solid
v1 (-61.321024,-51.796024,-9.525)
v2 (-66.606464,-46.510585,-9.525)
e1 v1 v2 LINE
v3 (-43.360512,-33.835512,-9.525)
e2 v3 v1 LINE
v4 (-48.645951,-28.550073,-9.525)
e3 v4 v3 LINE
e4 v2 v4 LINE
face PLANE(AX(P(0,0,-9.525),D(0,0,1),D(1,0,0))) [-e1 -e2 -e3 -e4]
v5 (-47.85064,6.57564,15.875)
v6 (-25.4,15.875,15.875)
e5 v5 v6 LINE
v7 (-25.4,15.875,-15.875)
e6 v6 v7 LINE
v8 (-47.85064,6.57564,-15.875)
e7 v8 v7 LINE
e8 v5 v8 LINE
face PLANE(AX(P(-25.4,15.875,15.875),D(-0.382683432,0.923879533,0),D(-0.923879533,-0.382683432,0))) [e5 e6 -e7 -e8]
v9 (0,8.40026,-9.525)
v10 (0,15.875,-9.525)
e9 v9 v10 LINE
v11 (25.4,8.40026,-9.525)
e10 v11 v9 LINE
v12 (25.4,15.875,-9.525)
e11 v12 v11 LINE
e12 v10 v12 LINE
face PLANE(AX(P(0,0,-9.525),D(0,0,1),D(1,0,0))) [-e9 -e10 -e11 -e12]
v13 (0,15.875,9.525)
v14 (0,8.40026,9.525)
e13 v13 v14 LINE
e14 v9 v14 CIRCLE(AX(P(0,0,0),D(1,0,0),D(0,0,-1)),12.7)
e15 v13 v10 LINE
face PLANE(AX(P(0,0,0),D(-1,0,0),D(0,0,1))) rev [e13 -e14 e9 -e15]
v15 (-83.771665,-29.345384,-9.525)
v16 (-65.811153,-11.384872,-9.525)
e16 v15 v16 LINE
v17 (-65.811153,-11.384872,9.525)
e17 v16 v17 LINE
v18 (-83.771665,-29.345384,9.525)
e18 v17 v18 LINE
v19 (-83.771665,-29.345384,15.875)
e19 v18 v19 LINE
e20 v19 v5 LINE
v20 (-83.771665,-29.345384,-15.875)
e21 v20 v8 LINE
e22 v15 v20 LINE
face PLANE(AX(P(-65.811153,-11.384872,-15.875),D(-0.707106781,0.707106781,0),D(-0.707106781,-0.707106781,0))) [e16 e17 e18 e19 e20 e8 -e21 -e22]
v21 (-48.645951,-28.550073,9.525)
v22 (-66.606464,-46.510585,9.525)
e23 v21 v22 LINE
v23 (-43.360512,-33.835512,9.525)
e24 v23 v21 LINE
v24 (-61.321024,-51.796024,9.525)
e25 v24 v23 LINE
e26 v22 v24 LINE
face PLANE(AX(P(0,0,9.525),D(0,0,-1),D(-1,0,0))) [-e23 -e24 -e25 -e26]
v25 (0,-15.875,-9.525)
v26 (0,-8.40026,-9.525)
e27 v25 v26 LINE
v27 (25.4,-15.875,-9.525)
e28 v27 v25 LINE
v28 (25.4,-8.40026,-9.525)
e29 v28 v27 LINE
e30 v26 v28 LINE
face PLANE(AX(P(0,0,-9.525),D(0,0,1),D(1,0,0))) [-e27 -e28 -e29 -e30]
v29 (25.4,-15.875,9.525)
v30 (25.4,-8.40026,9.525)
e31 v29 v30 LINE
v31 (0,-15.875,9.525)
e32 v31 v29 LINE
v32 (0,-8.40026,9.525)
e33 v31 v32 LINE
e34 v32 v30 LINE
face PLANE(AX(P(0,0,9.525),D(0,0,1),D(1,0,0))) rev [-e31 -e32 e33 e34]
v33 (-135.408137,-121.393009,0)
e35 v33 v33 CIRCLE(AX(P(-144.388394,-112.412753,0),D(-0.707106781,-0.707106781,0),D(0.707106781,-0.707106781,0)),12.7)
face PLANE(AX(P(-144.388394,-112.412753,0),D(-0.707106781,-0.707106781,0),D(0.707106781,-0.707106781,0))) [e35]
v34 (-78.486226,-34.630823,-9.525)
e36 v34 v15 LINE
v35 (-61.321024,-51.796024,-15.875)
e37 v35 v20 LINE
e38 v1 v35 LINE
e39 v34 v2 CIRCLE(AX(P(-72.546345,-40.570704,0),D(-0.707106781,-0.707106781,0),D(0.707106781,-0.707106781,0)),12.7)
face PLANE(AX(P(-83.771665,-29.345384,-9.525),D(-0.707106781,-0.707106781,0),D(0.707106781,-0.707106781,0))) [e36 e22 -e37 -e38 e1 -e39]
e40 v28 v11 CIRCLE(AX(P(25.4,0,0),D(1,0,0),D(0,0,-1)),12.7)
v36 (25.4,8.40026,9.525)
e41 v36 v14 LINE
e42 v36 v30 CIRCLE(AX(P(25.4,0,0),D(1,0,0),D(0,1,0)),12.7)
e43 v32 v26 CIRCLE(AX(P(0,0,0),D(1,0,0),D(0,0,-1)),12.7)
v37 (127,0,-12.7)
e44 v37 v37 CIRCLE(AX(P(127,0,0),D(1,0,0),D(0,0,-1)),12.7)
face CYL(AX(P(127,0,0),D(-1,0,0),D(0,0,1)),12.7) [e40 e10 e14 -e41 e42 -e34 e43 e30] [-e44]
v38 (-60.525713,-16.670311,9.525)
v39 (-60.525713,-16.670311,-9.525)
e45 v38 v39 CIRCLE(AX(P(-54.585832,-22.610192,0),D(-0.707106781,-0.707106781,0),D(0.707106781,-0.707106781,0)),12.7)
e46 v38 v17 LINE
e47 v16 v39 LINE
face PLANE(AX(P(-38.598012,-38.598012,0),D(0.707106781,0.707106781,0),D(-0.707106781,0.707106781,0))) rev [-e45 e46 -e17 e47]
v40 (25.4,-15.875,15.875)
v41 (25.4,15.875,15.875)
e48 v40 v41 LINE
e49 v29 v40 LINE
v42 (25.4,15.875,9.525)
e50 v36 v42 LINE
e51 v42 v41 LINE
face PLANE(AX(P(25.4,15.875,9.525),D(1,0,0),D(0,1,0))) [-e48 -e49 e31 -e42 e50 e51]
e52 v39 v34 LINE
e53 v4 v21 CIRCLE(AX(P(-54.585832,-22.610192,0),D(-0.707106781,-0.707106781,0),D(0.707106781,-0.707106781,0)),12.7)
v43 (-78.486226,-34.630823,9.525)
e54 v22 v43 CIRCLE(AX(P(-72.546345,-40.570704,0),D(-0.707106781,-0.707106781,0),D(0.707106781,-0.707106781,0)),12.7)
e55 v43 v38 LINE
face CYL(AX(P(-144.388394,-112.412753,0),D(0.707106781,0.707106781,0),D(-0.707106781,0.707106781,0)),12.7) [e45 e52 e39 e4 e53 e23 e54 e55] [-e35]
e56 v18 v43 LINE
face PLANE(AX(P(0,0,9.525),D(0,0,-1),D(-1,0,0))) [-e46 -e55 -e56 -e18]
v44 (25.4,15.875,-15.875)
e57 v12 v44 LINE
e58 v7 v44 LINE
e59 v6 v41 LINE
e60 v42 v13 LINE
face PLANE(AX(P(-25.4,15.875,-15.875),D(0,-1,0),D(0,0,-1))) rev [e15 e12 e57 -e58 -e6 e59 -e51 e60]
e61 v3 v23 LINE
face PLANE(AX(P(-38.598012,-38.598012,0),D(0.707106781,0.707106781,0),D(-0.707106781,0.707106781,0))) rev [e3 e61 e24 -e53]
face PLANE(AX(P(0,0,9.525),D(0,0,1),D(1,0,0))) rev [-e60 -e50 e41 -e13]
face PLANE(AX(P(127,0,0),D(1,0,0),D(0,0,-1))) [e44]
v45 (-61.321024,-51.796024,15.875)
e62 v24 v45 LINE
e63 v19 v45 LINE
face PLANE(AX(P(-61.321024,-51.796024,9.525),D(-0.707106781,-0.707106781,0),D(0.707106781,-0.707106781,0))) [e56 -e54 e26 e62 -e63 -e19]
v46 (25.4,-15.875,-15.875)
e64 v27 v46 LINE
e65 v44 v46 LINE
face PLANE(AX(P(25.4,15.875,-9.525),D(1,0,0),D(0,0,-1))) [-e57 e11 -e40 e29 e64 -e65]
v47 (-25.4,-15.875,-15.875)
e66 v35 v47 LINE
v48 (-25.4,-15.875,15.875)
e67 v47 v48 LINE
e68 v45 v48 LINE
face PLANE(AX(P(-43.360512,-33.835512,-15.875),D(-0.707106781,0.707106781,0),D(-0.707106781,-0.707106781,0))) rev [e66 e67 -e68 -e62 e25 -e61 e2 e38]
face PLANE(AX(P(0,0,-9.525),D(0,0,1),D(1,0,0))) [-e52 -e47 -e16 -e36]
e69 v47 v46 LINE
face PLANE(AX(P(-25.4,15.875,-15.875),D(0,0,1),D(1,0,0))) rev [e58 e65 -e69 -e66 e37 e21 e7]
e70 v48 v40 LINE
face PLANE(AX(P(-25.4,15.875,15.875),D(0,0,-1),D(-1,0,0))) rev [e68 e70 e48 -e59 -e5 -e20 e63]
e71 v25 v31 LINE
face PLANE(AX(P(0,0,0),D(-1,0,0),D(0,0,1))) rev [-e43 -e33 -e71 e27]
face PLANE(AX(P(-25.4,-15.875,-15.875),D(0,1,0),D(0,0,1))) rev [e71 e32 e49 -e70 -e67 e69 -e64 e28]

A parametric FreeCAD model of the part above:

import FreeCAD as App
import Part
import Sketcher
from FreeCAD import Vector
Q = App.Units.Quantity


def add_polygon(sketch, points):
    """Adds a closed chain of lines whose ends are joined by coincident constraints."""
    first, n = sketch.GeometryCount, len(points)
    for a, b in zip(points, points[1:] + points[:1]):
        sketch.addGeometry(Part.LineSegment(App.Vector(*a, 0), App.Vector(*b, 0)), False)
    for i in range(n):
        sketch.addConstraint(Sketcher.Constraint("Coincident", first + i, 2, first + (i + 1) % n, 1))

doc = App.newDocument("Part")
body = doc.addObject("PartDesign::Body", "Body")

sketch1 = doc.addObject("Sketcher::SketchObject", "Sketch")
body.addObject(sketch1)
sketch1.AttachmentSupport = (doc.YZ_Plane, [""])
sketch1.MapMode = "FlatFace"
sketch1.addGeometry(Part.Circle(Vector(0, 0, 0), Vector(0, 0, 1), 12.7), False)
sketch1.addConstraint(Sketcher.Constraint("Coincident", 0, 3, -1, 1))
sketch1.addConstraint(Sketcher.Constraint("Diameter", 0, Q("1 in")))
pad1 = doc.addObject("PartDesign::Pad", "Pad")
body.addObject(pad1)
pad1.Profile = sketch1
pad1.Length = Q("5 in")

sketch2 = doc.addObject("Sketcher::SketchObject", "Sketch001")
body.addObject(sketch2)
sketch2.AttachmentSupport = (doc.YZ_Plane, [""])
sketch2.MapMode = "FlatFace"
add_polygon(sketch2, [(15.875, -15.875), (-15.875, -15.875), (-15.875, 15.875), (15.875, 15.875)])
sketch2.addConstraint(Sketcher.Constraint("Horizontal", 0))
sketch2.addConstraint(Sketcher.Constraint("Vertical", 1))
sketch2.addConstraint(Sketcher.Constraint("Horizontal", 2))
sketch2.addConstraint(Sketcher.Constraint("Vertical", 3))
sketch2.addConstraint(Sketcher.Constraint("Symmetric", 0, 2, 2, 2, -1, 1))
sketch2.addConstraint(Sketcher.Constraint("Equal", 2, 1))
sketch2.addConstraint(Sketcher.Constraint("DistanceX", 0, 2, 0, 1, Q("1.25 in")))
pad2 = doc.addObject("PartDesign::Pad", "Pad001")
body.addObject(pad2)
pad2.Profile = sketch2
pad2.Length = Q("1 in")
pad2.Reversed = True

sketch3 = doc.addObject("Sketcher::SketchObject", "Sketch002")
body.addObject(sketch3)
sketch3.AttachmentSupport = (doc.XY_Plane, [""])
sketch3.MapMode = "FlatFace"
sketch3.AttachmentOffset = App.Placement(Vector(0, 0, 0.625 * 25.4), App.Rotation())
add_polygon(sketch3, [(0, 15.875), (0, -15.875), (25.4, -15.875), (25.4, 15.875)])
sketch3.addConstraint(Sketcher.Constraint("Vertical", 0))
sketch3.addConstraint(Sketcher.Constraint("Horizontal", 1))
sketch3.addConstraint(Sketcher.Constraint("Vertical", 2))
sketch3.addConstraint(Sketcher.Constraint("Horizontal", 3))
sketch3.addConstraint(Sketcher.Constraint("Symmetric", 0, 2, 3, 2, -1, 1))
sketch3.addConstraint(Sketcher.Constraint("DistanceX", 1, 1, 1, 2, Q("1 in")))
sketch3.addConstraint(Sketcher.Constraint("DistanceY", 0, 2, 0, 1, Q("1.25 in")))
pad3 = doc.addObject("PartDesign::Pad", "Pad002")
body.addObject(pad3)
pad3.Profile = sketch3
pad3.Length = Q("0.25 in")
pad3.Reversed = True

sketch4 = doc.addObject("Sketcher::SketchObject", "Sketch003")
body.addObject(sketch4)
sketch4.AttachmentSupport = (doc.XY_Plane, [""])
sketch4.MapMode = "FlatFace"
sketch4.AttachmentOffset = App.Placement(Vector(0, 0, -0.625 * 25.4), App.Rotation())
add_polygon(sketch4, [(25.4, 15.875), (25.4, -15.875), (0, -15.875), (0, 15.875)])
sketch4.addConstraint(Sketcher.Constraint("Vertical", 0))
sketch4.addConstraint(Sketcher.Constraint("Horizontal", 1))
sketch4.addConstraint(Sketcher.Constraint("Vertical", 2))
sketch4.addConstraint(Sketcher.Constraint("Horizontal", 3))
sketch4.addConstraint(Sketcher.Constraint("Symmetric", 1, 2, 2, 2, -1, 1))
sketch4.addConstraint(Sketcher.Constraint("DistanceX", 1, 2, 1, 1, Q("1 in")))
sketch4.addConstraint(Sketcher.Constraint("DistanceY", 0, 2, 0, 1, Q("1.25 in")))
pad4 = doc.addObject("PartDesign::Pad", "Pad003")
body.addObject(pad4)
pad4.Profile = sketch4
pad4.Length = Q("0.25 in")
body2 = doc.addObject("PartDesign::Body", "Body001")

sketch5 = doc.addObject("Sketcher::SketchObject", "Sketch004")
body2.addObject(sketch5)
sketch5.Placement = App.Placement(Vector(-20.6375, -20.6375, 0), App.Rotation(Vector(0, 0, 1), Vector(-0.707106781, 0.707106781, 0), Vector(-0.707106781, -0.707106781, 0), "ZXY"))
add_polygon(sketch5, [(-15.875, 38.485192), (-15.875, 6.735192), (15.875, 6.735192), (15.875, 38.485192)])
sketch5.addConstraint(Sketcher.Constraint("Vertical", 0))
sketch5.addConstraint(Sketcher.Constraint("Horizontal", 1))
sketch5.addConstraint(Sketcher.Constraint("Vertical", 2))
sketch5.addConstraint(Sketcher.Constraint("Horizontal", 3))
sketch5.addConstraint(Sketcher.Constraint("Equal", 3, 0))
sketch5.addConstraint(Sketcher.Constraint("DistanceX", 1, 1, 1, 2, Q("1.25 in")))
sketch5.addConstraint(Sketcher.Constraint("DistanceX", 0, 2, -1, 1, Q("0.625 in")))
sketch5.addConstraint(Sketcher.Constraint("DistanceY", -1, 1, 0, 2, Q("6.735192 mm")))
pad5 = doc.addObject("PartDesign::Pad", "Pad004")
body2.addObject(pad5)
pad5.Profile = sketch5
pad5.Length = Q("1 in")

sketch6 = doc.addObject("Sketcher::SketchObject", "Sketch005")
body2.addObject(sketch6)
sketch6.Placement = App.Placement(Vector(-38.598012, -38.598012, 0), App.Rotation(Vector(0, 0, 1), Vector(-0.707106781, 0.707106781, 0), Vector(-0.707106781, -0.707106781, 0), "ZXY"))
sketch6.addGeometry(Part.Circle(Vector(0, 22.610192, 0), Vector(0, 0, 1), 12.7), False)
sketch6.addConstraint(Sketcher.Constraint("PointOnObject", 0, 3, -2))
sketch6.addConstraint(Sketcher.Constraint("Diameter", 0, Q("1 in")))
sketch6.addConstraint(Sketcher.Constraint("DistanceY", -1, 1, 0, 3, Q("22.610192 mm")))
pad6 = doc.addObject("PartDesign::Pad", "Pad005")
body2.addObject(pad6)
pad6.Profile = sketch6
pad6.Length = Q("5 in")

sketch7 = doc.addObject("Sketcher::SketchObject", "Sketch006")
body2.addObject(sketch7)
sketch7.AttachmentSupport = (doc.getObject("XY_Plane001"), [""])
sketch7.MapMode = "FlatFace"
sketch7.AttachmentOffset = App.Placement(Vector(0, 0, 0.625 * 25.4), App.Rotation())
add_polygon(sketch7, [(-61.321024, -51.796024), (-43.360512, -33.835512), (-65.811153, -11.384872), (-83.771665, -29.345384)])
sketch7.addConstraint(Sketcher.Constraint("Perpendicular", 0, 1))
sketch7.addConstraint(Sketcher.Constraint("Perpendicular", 1, 2))
sketch7.addConstraint(Sketcher.Constraint("Perpendicular", 2, 3))
sketch7.addConstraint(Sketcher.Constraint("Distance", 0, Q("1 in")))
sketch7.addConstraint(Sketcher.Constraint("Angle", 0, Q("45 deg")))
sketch7.addConstraint(Sketcher.Constraint("Distance", 1, Q("1.25 in")))
sketch7.addConstraint(Sketcher.Constraint("DistanceY", 1, 2, -1, 1, Q("11.384872 mm")))
sketch7.addConstraint(Sketcher.Constraint("DistanceX", 0, 2, -1, 1, Q("43.360512 mm")))
pad7 = doc.addObject("PartDesign::Pad", "Pad006")
body2.addObject(pad7)
pad7.Profile = sketch7
pad7.Length = Q("0.25 in")
pad7.Reversed = True

sketch8 = doc.addObject("Sketcher::SketchObject", "Sketch007")
body2.addObject(sketch8)
sketch8.AttachmentSupport = (doc.getObject("XY_Plane001"), [""])
sketch8.MapMode = "FlatFace"
sketch8.AttachmentOffset = App.Placement(Vector(0, 0, -0.625 * 25.4), App.Rotation())
add_polygon(sketch8, [(-83.771665, -29.345384), (-65.811153, -11.384872), (-43.360512, -33.835512), (-61.321024, -51.796024)])
sketch8.addConstraint(Sketcher.Constraint("Perpendicular", 0, 1))
sketch8.addConstraint(Sketcher.Constraint("Perpendicular", 1, 2))
sketch8.addConstraint(Sketcher.Constraint("Perpendicular", 2, 3))
sketch8.addConstraint(Sketcher.Constraint("Distance", 0, Q("1 in")))
sketch8.addConstraint(Sketcher.Constraint("Angle", 0, Q("45 deg")))
sketch8.addConstraint(Sketcher.Constraint("Distance", 1, Q("1.25 in")))
sketch8.addConstraint(Sketcher.Constraint("DistanceY", 0, 2, -1, 1, Q("11.384872 mm")))
sketch8.addConstraint(Sketcher.Constraint("DistanceX", 0, 2, -1, 1, Q("65.811153 mm")))
pad8 = doc.addObject("PartDesign::Pad", "Pad007")
body2.addObject(pad8)
pad8.Profile = sketch8
pad8.Length = Q("0.25 in")
body.AllowCompound = True
doc.recompute()

boolean = doc.addObject("PartDesign::Boolean", "Boolean")
body.addObject(boolean)
boolean.Type = "Fuse"
boolean.addObjects([body2])

sketch9 = doc.addObject("Sketcher::SketchObject", "Sketch008")
body.addObject(sketch9)
sketch9.AttachmentSupport = (doc.XY_Plane, [""])
sketch9.MapMode = "FlatFace"
sketch9.AttachmentOffset = App.Placement(Vector(0, 0, -0.625 * 25.4), App.Rotation())
add_polygon(sketch9, [(-47.85064, 6.57564), (-25.4, 15.875), (-25.4, -15.875)])
sketch9.addConstraint(Sketcher.Constraint("Vertical", 1))
sketch9.addConstraint(Sketcher.Constraint("DistanceX", 0, 2, -1, 1, Q("1 in")))
sketch9.addConstraint(Sketcher.Constraint("Angle", 2, Q("135 deg")))
sketch9.addConstraint(Sketcher.Constraint("DistanceY", 1, 2, 1, 1, Q("1.25 in")))
sketch9.addConstraint(Sketcher.Constraint("Angle", 0, Q("22.5 deg")))
sketch9.addConstraint(Sketcher.Constraint("DistanceY", -1, 1, 0, 2, Q("0.625 in")))
pad9 = doc.addObject("PartDesign::Pad", "Pad008")
body.addObject(pad9)
pad9.Profile = sketch9
pad9.Length = Q("1.25 in")

doc.recompute()
